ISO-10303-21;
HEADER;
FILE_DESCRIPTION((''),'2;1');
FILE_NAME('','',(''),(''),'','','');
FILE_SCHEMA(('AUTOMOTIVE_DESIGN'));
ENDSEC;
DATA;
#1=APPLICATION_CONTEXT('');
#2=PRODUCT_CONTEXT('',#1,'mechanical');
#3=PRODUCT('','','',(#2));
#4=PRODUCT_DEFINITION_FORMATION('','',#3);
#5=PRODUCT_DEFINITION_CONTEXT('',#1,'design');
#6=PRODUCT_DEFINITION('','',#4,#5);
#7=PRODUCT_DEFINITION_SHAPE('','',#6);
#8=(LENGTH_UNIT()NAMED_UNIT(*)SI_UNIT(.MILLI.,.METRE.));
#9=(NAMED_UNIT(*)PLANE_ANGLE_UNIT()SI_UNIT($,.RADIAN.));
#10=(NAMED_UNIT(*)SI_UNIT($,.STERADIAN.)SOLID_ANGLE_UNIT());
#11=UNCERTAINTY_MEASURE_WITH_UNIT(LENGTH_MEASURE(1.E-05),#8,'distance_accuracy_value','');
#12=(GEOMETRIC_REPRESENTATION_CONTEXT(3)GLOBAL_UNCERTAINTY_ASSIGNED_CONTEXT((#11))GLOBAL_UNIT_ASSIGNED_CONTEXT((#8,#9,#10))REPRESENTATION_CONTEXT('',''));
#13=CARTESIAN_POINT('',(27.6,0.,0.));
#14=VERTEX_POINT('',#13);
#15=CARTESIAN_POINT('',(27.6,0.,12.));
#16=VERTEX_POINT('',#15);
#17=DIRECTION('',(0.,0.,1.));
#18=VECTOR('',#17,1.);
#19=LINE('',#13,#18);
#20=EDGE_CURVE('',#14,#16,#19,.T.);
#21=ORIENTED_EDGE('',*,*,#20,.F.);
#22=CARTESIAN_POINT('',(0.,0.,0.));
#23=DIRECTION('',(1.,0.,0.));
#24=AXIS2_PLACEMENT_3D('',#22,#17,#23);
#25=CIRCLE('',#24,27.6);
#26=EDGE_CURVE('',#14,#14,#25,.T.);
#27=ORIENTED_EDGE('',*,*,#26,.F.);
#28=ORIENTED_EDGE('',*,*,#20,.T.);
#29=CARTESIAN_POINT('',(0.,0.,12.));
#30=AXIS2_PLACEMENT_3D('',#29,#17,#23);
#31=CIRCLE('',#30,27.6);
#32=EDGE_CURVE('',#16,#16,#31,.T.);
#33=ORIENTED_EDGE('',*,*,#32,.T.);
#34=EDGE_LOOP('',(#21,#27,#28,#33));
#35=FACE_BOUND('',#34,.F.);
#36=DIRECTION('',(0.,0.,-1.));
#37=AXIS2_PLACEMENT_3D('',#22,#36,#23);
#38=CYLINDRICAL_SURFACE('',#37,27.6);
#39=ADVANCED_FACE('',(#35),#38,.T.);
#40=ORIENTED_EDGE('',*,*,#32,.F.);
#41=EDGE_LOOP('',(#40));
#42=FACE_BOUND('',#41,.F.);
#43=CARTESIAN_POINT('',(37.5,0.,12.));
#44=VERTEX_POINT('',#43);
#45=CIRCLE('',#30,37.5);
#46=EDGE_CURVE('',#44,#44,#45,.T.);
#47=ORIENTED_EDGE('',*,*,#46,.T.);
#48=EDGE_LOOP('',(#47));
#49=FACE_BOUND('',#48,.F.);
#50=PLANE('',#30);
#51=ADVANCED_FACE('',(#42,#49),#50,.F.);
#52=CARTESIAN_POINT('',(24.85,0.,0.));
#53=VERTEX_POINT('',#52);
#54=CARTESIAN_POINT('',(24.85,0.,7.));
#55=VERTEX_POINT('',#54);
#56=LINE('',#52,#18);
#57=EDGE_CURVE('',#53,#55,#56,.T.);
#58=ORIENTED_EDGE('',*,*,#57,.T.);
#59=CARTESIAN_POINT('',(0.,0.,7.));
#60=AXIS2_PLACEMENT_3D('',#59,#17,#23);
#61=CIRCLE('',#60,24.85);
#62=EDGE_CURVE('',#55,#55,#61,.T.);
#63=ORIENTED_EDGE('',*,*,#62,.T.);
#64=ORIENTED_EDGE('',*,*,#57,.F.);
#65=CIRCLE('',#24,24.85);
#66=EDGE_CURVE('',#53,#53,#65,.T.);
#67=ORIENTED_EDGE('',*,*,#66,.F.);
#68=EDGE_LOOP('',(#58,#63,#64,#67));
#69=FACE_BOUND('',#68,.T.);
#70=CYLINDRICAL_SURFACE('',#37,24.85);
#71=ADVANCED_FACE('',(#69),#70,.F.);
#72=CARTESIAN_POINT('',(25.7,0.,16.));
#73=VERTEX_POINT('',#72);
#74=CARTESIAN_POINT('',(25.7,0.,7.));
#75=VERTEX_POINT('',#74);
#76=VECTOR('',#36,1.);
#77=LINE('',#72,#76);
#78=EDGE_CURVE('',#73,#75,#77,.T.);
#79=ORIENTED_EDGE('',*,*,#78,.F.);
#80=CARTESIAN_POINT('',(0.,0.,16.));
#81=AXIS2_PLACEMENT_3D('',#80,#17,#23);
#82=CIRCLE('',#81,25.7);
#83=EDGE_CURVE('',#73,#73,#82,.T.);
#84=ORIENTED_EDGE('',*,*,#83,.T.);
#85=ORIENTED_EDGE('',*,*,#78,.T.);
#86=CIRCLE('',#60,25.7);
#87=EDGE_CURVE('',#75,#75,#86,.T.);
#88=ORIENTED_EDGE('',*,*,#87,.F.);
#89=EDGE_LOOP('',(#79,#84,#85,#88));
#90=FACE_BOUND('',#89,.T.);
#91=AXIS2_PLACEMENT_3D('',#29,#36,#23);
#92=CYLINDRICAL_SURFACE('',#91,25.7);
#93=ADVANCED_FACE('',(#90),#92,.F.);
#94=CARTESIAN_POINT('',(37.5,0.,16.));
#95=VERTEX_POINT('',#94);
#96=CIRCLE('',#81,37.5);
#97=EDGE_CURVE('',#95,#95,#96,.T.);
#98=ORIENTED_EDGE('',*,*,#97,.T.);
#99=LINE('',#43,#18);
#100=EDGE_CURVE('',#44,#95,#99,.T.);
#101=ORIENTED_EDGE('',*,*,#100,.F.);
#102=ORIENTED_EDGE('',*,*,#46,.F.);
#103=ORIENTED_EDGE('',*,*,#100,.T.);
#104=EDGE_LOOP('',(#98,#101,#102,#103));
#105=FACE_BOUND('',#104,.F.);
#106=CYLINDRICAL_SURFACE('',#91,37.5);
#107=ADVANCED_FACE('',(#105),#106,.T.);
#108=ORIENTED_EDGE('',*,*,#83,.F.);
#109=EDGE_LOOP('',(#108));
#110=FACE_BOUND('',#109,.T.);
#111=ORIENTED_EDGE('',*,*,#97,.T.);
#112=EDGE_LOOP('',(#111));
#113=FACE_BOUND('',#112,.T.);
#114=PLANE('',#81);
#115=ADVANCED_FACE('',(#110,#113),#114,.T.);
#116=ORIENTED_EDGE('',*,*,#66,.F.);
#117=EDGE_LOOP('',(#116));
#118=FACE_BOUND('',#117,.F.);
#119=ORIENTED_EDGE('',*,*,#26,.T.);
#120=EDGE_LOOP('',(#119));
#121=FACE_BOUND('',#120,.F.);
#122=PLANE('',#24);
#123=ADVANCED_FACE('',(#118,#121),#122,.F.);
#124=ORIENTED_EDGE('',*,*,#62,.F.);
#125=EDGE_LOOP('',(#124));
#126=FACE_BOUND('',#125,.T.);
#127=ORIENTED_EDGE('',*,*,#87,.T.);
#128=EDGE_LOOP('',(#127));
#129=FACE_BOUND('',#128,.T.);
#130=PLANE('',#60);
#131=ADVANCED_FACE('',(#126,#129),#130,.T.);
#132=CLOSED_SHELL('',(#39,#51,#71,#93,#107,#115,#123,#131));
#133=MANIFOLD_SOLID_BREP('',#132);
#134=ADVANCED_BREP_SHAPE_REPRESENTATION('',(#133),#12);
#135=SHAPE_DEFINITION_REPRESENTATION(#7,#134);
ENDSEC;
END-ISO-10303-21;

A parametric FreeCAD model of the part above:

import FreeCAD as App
import Part
import Sketcher
from FreeCAD import Vector

doc = App.newDocument("Part")
params = doc.addObject("Spreadsheet::Sheet", "Params")
for row, (alias, value) in enumerate([
    ("sketch1_diameter", "51.4 mm"),
    ("sketch1_diameter2", "49.7 mm"),
    ("pad1_length", "7 mm"),
    ("sketch2_diameter", "55.2 mm"),
    ("sketch2_diameter2", "51.4 mm"),
    ("pad2_length", "12 mm"),
    ("sketch3_diameter", "75 mm"),
    ("sketch3_diameter2", "51.4 mm"),
    ("pad3_length", "4 mm"),
], start=1):
    params.set(f"A{row}", alias)
    params.set(f"B{row}", "=" + value)
    params.setAlias(f"B{row}", alias)

body = doc.addObject("PartDesign::Body", "Body")

sketch1 = body.newObject("Sketcher::SketchObject", "Sketch")
sketch1.AttachmentSupport = (doc.getObject("XY_Plane"), [""])
sketch1.MapMode = "FlatFace"
sketch1.addGeometry([
    Part.Circle(Vector(0, 0, 0), Vector(0, 0, 1), 26),
    Part.Circle(Vector(0, 0, 0), Vector(0, 0, 1), 25),
], False)
sketch1.addConstraint([
    Sketcher.Constraint("Coincident", 0, 3, -1, 1),
    Sketcher.Constraint("Coincident", 1, 3, -1, 1),
    Sketcher.Constraint("Diameter", 0, 51.4),
    Sketcher.Constraint("Diameter", 1, 49.7),
])
sketch1.setExpression("Constraints[2]", "Params.sketch1_diameter")
sketch1.setExpression("Constraints[3]", "Params.sketch1_diameter2")
pad1 = body.newObject("PartDesign::Pad", "Pad")
pad1.Profile = sketch1
pad1.setExpression("Length", "Params.pad1_length")

sketch2 = body.newObject("Sketcher::SketchObject", "Sketch001")
sketch2.AttachmentSupport = (doc.getObject("XY_Plane"), [""])
sketch2.MapMode = "FlatFace"
sketch2.addGeometry([
    Part.Circle(Vector(0, 0, 0), Vector(0, 0, 1), 28),
    Part.Circle(Vector(0, 0, 0), Vector(0, 0, 1), 26),
], False)
sketch2.addConstraint([
    Sketcher.Constraint("Coincident", 0, 3, -1, 1),
    Sketcher.Constraint("Coincident", 1, 3, -1, 1),
    Sketcher.Constraint("Diameter", 0, 55.2),
    Sketcher.Constraint("Diameter", 1, 51.4),
])
sketch2.setExpression("Constraints[2]", "Params.sketch2_diameter")
sketch2.setExpression("Constraints[3]", "Params.sketch2_diameter2")
pad2 = body.newObject("PartDesign::Pad", "Pad001")
pad2.Profile = sketch2
pad2.setExpression("Length", "Params.pad2_length")

sketch3 = body.newObject("Sketcher::SketchObject", "Sketch002")
sketch3.AttachmentSupport = (doc.getObject("XY_Plane"), [""])
sketch3.MapMode = "FlatFace"
sketch3.AttachmentOffset = App.Placement(Vector(0, 0, 12), App.Rotation())
sketch3.addGeometry([
    Part.Circle(Vector(0, 0, 0), Vector(0, 0, 1), 38),
    Part.Circle(Vector(0, 0, 0), Vector(0, 0, 1), 26),
], False)
sketch3.addConstraint([
    Sketcher.Constraint("Coincident", 0, 3, -1, 1),
    Sketcher.Constraint("Coincident", 1, 3, -1, 1),
    Sketcher.Constraint("Diameter", 0, 75.0),
    Sketcher.Constraint("Diameter", 1, 51.4),
])
sketch3.setExpression("Constraints[2]", "Params.sketch3_diameter")
sketch3.setExpression("Constraints[3]", "Params.sketch3_diameter2")
pad3 = body.newObject("PartDesign::Pad", "Pad002")
pad3.Profile = sketch3
pad3.setExpression("Length", "Params.pad3_length")

doc.recompute()
